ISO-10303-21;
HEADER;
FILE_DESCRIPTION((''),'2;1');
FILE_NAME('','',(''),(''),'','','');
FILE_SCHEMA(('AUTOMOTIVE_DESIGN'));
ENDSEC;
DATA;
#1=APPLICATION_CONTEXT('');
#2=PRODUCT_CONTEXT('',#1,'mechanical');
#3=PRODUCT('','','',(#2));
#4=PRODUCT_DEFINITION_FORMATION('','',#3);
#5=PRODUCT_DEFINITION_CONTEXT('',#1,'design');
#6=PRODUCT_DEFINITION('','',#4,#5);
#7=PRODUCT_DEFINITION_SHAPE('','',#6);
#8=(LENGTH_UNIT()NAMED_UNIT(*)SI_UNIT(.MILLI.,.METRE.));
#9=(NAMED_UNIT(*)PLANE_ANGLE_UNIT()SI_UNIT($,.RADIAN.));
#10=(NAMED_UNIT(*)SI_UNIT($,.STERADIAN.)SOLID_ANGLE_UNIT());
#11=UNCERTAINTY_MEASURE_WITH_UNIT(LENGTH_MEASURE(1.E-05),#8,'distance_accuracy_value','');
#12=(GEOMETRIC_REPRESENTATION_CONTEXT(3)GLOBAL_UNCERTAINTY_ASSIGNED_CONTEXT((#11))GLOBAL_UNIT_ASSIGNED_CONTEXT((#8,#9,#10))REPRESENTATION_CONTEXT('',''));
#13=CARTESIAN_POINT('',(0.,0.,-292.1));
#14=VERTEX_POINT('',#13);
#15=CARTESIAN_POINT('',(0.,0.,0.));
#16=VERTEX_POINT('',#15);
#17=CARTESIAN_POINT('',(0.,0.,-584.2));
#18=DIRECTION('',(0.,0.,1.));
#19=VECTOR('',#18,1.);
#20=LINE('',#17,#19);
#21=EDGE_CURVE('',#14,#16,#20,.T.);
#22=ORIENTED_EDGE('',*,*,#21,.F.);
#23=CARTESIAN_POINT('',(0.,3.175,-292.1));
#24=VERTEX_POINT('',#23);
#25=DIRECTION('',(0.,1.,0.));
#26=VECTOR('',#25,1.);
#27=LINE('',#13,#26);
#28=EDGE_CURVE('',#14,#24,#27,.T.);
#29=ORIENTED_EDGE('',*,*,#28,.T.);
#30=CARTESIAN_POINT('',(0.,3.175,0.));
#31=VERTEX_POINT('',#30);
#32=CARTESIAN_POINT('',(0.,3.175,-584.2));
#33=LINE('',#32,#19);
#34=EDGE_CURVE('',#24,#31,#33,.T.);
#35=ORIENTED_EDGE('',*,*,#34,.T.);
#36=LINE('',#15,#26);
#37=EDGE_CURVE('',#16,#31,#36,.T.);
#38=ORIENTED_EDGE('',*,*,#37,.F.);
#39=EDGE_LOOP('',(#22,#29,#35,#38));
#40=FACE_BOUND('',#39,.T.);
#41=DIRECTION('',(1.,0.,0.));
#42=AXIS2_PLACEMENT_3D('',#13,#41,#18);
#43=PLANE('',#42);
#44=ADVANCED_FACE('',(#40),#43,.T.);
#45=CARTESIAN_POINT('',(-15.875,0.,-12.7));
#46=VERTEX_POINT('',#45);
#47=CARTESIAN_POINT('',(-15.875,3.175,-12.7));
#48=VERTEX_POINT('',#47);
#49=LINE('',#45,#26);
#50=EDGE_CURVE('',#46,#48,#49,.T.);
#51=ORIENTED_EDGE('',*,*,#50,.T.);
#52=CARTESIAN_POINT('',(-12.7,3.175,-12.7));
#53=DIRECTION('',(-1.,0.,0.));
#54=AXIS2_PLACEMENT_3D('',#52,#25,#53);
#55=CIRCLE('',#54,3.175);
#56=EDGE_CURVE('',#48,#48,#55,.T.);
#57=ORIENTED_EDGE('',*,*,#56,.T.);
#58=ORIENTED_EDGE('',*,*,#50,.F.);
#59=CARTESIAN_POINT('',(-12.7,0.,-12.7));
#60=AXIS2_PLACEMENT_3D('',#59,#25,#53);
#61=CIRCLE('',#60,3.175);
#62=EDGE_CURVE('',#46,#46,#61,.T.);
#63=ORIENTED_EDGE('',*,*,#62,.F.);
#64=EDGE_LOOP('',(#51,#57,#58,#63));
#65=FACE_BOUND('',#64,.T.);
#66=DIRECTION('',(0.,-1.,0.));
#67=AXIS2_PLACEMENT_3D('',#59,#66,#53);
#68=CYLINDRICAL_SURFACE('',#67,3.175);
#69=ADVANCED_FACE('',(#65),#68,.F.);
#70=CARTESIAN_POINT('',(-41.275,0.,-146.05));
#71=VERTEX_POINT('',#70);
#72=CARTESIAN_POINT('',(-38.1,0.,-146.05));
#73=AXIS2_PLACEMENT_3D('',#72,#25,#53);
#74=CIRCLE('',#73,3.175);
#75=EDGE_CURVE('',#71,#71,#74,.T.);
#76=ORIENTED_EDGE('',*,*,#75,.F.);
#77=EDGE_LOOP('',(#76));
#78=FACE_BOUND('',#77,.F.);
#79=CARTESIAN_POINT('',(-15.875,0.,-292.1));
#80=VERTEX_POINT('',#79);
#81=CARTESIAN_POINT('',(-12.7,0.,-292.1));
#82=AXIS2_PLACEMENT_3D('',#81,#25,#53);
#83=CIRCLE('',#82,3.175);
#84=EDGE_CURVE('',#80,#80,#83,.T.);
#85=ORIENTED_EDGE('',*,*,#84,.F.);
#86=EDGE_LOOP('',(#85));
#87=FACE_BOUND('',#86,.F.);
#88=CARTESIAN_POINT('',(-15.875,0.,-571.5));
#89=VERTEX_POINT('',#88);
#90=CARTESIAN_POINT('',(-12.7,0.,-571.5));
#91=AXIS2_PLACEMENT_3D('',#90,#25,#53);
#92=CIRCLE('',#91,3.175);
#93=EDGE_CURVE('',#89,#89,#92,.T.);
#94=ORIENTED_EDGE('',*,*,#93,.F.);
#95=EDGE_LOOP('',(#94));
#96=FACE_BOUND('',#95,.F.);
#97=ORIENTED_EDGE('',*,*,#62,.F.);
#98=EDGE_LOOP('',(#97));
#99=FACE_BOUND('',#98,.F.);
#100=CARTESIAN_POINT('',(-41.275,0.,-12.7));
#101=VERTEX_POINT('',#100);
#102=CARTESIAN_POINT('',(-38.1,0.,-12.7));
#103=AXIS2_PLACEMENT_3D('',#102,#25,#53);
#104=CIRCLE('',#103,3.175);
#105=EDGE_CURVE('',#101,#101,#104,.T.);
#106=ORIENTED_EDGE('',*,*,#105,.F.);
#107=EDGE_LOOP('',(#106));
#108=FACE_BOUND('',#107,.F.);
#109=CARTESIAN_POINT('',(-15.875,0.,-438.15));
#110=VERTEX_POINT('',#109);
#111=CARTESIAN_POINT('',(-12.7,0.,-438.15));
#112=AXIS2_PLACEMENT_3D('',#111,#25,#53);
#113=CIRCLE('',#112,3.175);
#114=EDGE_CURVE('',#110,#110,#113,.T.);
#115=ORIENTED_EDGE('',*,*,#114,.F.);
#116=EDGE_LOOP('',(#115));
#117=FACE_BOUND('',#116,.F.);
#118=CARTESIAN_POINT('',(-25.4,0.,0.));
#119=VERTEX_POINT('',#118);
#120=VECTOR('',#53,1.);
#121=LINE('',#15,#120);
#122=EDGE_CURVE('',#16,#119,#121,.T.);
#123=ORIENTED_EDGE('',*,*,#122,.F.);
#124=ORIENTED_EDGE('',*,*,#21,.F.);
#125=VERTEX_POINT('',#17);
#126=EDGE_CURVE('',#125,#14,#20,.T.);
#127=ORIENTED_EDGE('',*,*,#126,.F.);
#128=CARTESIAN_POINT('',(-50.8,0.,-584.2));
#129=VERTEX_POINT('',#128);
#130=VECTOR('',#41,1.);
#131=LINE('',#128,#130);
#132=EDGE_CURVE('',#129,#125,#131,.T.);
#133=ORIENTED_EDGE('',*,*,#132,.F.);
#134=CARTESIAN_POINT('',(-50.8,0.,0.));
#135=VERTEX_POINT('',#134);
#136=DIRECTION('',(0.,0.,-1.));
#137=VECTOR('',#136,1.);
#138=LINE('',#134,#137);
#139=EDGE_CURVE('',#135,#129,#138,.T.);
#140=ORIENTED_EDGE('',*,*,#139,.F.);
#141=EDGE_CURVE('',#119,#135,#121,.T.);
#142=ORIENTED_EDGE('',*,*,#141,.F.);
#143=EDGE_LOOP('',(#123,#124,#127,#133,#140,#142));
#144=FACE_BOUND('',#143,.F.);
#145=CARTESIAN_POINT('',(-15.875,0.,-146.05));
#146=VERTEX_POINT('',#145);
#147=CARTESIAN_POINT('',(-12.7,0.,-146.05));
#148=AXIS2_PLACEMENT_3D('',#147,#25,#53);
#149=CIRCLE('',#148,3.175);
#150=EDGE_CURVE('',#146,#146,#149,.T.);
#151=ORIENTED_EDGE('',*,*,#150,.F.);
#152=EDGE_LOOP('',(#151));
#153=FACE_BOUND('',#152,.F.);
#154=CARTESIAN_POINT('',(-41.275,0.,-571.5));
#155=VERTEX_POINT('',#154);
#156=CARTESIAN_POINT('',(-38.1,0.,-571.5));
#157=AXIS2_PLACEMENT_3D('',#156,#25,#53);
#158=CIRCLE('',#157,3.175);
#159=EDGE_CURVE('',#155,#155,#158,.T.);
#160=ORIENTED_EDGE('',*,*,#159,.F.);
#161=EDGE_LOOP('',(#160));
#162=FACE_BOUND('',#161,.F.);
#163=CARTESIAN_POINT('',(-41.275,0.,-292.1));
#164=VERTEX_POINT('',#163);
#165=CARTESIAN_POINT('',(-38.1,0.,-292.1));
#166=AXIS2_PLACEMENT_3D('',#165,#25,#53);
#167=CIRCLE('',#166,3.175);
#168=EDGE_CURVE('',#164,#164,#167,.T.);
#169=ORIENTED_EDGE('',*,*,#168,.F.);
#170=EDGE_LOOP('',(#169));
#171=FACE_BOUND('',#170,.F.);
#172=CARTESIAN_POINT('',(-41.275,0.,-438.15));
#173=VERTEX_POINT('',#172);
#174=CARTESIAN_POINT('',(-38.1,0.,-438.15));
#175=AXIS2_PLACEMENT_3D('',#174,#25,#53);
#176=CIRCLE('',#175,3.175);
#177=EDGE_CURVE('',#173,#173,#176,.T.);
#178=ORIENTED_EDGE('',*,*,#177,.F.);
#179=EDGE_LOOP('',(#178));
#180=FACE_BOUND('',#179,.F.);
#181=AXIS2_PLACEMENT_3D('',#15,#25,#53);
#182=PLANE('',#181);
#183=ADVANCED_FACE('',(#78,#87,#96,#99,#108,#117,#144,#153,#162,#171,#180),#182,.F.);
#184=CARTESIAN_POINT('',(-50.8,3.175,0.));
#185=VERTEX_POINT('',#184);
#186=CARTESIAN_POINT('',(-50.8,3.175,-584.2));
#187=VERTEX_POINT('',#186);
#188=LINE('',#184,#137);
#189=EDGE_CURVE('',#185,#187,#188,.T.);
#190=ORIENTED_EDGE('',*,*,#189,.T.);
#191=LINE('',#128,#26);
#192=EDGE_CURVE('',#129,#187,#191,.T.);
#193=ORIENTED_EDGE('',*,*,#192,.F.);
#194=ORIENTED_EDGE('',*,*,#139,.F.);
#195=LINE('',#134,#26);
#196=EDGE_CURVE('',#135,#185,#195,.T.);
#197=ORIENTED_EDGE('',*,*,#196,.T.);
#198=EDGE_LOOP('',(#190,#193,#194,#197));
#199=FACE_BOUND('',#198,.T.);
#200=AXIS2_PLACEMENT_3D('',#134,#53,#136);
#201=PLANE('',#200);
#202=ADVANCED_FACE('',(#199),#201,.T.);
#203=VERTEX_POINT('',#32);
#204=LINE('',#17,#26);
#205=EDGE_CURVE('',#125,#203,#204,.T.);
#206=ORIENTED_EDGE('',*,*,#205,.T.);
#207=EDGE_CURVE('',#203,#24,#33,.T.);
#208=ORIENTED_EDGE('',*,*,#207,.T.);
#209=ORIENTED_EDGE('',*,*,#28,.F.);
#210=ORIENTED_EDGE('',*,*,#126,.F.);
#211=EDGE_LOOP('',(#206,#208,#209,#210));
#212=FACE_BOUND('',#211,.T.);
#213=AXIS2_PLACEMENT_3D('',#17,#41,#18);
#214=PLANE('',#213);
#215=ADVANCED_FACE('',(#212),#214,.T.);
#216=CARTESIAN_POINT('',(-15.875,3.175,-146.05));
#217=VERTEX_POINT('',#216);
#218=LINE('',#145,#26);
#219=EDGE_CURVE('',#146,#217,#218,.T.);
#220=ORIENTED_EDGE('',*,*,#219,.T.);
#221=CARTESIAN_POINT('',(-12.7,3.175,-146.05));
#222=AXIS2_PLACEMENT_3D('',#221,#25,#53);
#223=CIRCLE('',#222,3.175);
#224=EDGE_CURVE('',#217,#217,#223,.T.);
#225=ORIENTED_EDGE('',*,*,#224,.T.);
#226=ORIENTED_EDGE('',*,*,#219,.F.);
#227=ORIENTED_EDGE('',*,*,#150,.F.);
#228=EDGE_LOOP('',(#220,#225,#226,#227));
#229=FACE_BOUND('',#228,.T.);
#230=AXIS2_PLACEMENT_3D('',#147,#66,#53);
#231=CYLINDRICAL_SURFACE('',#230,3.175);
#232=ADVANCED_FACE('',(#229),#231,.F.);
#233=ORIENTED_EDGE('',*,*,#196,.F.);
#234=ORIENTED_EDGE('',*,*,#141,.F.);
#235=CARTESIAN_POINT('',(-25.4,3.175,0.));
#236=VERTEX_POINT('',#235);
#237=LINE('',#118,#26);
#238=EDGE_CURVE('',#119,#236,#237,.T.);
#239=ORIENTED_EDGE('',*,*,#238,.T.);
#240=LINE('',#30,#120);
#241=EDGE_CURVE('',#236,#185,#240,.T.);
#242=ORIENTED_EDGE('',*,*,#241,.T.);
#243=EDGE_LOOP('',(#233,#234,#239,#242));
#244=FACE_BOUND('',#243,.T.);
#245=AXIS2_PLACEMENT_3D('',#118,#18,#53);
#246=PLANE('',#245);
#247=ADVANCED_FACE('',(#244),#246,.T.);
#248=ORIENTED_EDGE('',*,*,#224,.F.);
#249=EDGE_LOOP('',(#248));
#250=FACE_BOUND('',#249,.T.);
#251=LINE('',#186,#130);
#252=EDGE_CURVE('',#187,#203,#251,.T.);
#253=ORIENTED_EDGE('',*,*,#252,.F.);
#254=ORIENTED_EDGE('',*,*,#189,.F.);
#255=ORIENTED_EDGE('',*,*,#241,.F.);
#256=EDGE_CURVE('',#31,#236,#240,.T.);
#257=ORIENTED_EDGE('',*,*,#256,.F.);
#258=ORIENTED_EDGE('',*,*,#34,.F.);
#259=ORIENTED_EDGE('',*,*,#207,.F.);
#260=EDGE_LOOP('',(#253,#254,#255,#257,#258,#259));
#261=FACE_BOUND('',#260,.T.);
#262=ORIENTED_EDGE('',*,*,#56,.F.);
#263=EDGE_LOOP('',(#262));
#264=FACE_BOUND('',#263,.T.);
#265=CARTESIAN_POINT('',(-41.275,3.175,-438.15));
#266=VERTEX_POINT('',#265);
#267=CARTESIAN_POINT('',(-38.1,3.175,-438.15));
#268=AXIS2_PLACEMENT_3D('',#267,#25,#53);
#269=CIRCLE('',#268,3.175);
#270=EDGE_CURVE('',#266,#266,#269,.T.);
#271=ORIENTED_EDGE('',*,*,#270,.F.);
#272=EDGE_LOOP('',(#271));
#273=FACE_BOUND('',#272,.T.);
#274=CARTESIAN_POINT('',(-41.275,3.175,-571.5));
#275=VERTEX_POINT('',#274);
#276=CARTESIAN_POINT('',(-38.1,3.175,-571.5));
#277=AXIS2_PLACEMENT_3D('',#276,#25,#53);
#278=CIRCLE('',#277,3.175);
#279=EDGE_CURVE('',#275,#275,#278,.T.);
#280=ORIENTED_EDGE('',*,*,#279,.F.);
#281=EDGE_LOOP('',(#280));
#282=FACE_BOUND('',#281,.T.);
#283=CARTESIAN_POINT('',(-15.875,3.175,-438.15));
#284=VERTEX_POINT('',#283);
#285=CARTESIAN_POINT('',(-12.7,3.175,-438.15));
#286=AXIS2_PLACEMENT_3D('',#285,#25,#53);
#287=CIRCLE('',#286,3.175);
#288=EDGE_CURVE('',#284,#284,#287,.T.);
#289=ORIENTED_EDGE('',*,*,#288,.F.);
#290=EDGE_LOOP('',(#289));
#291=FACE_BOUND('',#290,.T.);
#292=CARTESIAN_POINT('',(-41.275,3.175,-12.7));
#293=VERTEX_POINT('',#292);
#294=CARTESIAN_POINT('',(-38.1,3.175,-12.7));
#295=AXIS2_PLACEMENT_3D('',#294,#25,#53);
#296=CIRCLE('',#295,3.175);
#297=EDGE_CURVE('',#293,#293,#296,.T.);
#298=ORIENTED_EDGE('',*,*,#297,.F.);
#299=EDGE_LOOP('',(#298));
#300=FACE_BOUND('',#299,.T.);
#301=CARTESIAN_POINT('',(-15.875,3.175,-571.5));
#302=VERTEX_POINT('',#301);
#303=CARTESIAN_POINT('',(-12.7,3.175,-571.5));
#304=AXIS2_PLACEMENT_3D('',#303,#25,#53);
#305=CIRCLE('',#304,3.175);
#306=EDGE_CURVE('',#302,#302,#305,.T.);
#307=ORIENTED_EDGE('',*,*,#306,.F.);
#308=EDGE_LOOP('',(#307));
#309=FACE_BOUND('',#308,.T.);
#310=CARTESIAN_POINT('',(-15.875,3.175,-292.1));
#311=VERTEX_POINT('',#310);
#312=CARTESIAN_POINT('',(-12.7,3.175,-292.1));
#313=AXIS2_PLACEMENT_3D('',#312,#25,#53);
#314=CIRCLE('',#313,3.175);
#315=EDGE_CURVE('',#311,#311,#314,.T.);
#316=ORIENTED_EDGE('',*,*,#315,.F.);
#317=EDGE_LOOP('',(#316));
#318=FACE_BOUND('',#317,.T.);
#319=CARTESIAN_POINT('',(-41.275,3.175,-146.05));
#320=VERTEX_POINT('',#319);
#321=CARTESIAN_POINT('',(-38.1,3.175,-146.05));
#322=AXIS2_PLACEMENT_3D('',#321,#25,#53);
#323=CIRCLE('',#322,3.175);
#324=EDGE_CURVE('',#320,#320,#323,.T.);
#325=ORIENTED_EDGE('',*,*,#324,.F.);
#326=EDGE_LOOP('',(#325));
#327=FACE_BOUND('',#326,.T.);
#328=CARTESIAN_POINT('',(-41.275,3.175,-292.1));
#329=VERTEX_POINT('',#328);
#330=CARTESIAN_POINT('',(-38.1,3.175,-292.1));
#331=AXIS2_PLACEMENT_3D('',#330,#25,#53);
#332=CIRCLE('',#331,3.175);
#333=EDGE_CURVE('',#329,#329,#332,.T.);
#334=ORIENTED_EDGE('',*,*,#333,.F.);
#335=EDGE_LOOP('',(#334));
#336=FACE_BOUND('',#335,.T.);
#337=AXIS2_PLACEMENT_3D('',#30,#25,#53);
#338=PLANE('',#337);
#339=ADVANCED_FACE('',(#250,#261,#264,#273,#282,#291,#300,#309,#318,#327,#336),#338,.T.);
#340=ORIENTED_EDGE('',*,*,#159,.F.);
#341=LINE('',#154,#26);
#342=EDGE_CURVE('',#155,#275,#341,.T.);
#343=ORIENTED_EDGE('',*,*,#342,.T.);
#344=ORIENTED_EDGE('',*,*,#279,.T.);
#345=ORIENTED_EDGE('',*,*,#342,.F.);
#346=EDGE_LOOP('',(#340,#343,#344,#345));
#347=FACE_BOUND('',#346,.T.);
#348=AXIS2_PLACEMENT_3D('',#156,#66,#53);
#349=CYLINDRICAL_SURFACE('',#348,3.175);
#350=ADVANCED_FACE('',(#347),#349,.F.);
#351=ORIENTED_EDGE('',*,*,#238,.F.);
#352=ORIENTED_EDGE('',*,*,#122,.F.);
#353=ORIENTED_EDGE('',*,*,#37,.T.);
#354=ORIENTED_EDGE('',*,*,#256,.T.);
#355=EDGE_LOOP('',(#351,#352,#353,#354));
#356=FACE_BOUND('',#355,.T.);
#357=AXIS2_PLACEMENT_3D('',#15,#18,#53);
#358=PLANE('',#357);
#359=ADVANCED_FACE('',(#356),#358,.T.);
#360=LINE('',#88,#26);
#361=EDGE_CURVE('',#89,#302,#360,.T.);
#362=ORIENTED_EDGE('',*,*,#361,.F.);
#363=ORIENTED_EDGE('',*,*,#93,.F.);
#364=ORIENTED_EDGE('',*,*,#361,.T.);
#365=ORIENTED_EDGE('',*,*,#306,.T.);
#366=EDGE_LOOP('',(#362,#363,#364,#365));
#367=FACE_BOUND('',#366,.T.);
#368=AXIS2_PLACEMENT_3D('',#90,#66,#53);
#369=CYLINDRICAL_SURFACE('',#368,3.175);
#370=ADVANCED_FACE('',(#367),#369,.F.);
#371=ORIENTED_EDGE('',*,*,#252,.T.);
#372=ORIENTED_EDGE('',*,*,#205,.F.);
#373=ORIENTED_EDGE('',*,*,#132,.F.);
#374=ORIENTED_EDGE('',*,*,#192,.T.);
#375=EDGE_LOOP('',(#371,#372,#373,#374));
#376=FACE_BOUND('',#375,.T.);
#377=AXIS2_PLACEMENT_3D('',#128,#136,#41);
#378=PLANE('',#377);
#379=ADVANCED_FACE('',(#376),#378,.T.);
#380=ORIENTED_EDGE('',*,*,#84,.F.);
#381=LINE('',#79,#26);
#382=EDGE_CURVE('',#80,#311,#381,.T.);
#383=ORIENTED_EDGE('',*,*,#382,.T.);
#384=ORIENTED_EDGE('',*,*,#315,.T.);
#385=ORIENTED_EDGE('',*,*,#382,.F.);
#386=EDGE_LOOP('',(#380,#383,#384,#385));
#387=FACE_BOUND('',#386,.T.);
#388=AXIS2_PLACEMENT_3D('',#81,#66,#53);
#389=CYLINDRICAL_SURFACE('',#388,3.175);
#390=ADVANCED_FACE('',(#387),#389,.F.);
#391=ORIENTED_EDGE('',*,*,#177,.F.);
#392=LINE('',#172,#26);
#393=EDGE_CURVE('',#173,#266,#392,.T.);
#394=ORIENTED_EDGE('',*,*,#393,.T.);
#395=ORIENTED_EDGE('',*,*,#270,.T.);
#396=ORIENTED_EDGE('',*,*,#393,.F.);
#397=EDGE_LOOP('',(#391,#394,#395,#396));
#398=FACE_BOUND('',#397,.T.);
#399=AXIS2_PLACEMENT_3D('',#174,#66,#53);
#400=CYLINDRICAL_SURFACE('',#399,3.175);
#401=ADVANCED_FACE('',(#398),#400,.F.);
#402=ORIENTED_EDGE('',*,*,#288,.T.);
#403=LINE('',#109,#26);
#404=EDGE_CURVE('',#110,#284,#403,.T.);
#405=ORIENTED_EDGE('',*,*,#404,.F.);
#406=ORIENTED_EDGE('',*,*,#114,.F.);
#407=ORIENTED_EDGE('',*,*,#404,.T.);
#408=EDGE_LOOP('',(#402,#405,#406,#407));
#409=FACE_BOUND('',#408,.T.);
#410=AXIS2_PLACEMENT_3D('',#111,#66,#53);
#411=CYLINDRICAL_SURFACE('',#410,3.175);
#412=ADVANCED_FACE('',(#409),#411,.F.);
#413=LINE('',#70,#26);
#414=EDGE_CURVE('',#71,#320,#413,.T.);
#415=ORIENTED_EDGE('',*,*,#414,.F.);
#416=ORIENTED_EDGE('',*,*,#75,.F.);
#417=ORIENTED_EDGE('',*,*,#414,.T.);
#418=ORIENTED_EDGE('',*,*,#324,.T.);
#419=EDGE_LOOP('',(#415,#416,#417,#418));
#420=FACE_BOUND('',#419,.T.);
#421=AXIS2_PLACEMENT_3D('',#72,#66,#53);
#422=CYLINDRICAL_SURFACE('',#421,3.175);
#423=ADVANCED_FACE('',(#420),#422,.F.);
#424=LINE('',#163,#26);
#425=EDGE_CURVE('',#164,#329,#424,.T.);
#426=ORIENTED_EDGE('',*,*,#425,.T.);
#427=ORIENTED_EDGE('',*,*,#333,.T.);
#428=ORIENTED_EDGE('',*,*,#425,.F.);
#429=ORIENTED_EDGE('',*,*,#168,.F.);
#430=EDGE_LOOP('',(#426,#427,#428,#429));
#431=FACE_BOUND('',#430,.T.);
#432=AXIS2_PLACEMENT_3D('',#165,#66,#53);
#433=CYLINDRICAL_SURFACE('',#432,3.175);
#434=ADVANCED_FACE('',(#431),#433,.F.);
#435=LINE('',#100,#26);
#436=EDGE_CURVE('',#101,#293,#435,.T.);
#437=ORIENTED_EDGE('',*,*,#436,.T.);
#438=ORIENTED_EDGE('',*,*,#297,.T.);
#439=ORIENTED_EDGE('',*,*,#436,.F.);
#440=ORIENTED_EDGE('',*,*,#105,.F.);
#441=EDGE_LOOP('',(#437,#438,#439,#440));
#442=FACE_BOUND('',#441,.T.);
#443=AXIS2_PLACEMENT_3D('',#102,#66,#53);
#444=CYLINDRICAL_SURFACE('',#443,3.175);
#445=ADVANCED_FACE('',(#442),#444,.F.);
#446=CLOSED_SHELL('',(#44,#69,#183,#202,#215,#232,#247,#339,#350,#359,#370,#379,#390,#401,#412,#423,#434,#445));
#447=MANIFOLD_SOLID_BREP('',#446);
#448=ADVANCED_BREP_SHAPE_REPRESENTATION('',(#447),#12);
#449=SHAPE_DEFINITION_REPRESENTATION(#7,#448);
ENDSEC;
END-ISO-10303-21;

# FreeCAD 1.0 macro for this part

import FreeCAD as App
import Part
import Sketcher
from FreeCAD import Vector
Q = App.Units.Quantity

doc = App.newDocument("Part")
params = doc.addObject("Spreadsheet::Sheet", "Params")
for row, (alias, value) in enumerate([
    ("sketch1_diameter", "0.25 in"),
    ("sketch1_width", "2 in"),
    ("sketch1_height", "23 in"),
    ("pad1_length", "0.125 in"),
], start=1):
    params.set(f"A{row}", alias)
    params.set(f"B{row}", "=" + value)
    params.setAlias(f"B{row}", alias)

body = doc.addObject("PartDesign::Body", "Body")

# Sketch on XZ plane
sketch1 = doc.addObject("Sketcher::SketchObject", "Sketch")
body.addObject(sketch1)
sketch1.AttachmentSupport = (doc.XZ_Plane, [""])
sketch1.MapMode = "FlatFace"
sketch1.addGeometry(Part.LineSegment(Vector(-50.8, 0, 0), Vector(0, 0, 0)), False)
sketch1.addGeometry(Part.LineSegment(Vector(0, 0, 0), Vector(0, -584.2, 0)), False)
sketch1.addGeometry(Part.LineSegment(Vector(0, -584.2, 0), Vector(-50.8, -584.2, 0)), False)
sketch1.addGeometry(Part.LineSegment(Vector(-50.8, -584.2, 0), Vector(-50.8, 0, 0)), False)
sketch1.addGeometry(Part.Circle(Vector(-12.7, -571.5, 0), Vector(0, 0, 1), 3.2), False)
sketch1.addGeometry(Part.Circle(Vector(-12.7, -438.1, 0), Vector(0, 0, 1), 3.2), False)
sketch1.addGeometry(Part.Circle(Vector(-38.1, -571.5, 0), Vector(0, 0, 1), 3.2), False)
sketch1.addGeometry(Part.Circle(Vector(-38.1, -438.1, 0), Vector(0, 0, 1), 3.2), False)
sketch1.addGeometry(Part.Circle(Vector(-12.7, -292.1, 0), Vector(0, 0, 1), 3.2), False)
sketch1.addGeometry(Part.Circle(Vector(-12.7, -146.1, 0), Vector(0, 0, 1), 3.2), False)
sketch1.addGeometry(Part.Circle(Vector(-12.7, -12.7, 0), Vector(0, 0, 1), 3.2), False)
sketch1.addGeometry(Part.Circle(Vector(-38.1, -292.1, 0), Vector(0, 0, 1), 3.2), False)
sketch1.addGeometry(Part.Circle(Vector(-38.1, -146.1, 0), Vector(0, 0, 1), 3.2), False)
sketch1.addGeometry(Part.Circle(Vector(-38.1, -12.7, 0), Vector(0, 0, 1), 3.2), False)
sketch1.addConstraint(Sketcher.Constraint("Coincident", 0, 2, 1, 1))
sketch1.addConstraint(Sketcher.Constraint("Coincident", 1, 2, 2, 1))
sketch1.addConstraint(Sketcher.Constraint("Coincident", 2, 2, 3, 1))
sketch1.addConstraint(Sketcher.Constraint("Coincident", 3, 2, 0, 1))
sketch1.addConstraint(Sketcher.Constraint("Horizontal", 0))
sketch1.addConstraint(Sketcher.Constraint("Vertical", 1))
sketch1.addConstraint(Sketcher.Constraint("Horizontal", 2))
sketch1.addConstraint(Sketcher.Constraint("Vertical", 3))
sketch1.addConstraint(Sketcher.Constraint("Coincident", 0, 2, -1, 1))
sketch1.addConstraint(Sketcher.Constraint("Equal", 4, 5))
sketch1.addConstraint(Sketcher.Constraint("Equal", 5, 6))
sketch1.addConstraint(Sketcher.Constraint("Equal", 6, 7))
sketch1.addConstraint(Sketcher.Constraint("Equal", 7, 8))
sketch1.addConstraint(Sketcher.Constraint("Equal", 8, 9))
sketch1.addConstraint(Sketcher.Constraint("Equal", 9, 10))
sketch1.addConstraint(Sketcher.Constraint("Equal", 10, 11))
sketch1.addConstraint(Sketcher.Constraint("Equal", 11, 12))
sketch1.addConstraint(Sketcher.Constraint("Equal", 12, 13))
sketch1.addConstraint(Sketcher.Constraint("Horizontal", 4, 3, 6, 3))
sketch1.addConstraint(Sketcher.Constraint("Horizontal", 5, 3, 7, 3))
sketch1.addConstraint(Sketcher.Constraint("Horizontal", 8, 3, 11, 3))
sketch1.addConstraint(Sketcher.Constraint("Horizontal", 9, 3, 12, 3))
sketch1.addConstraint(Sketcher.Constraint("Horizontal", 10, 3, 13, 3))
sketch1.addConstraint(Sketcher.Constraint("Vertical", 4, 3, 5, 3))
sketch1.addConstraint(Sketcher.Constraint("Vertical", 6, 3, 7, 3))
sketch1.addConstraint(Sketcher.Constraint("Vertical", 5, 3, 8, 3))
sketch1.addConstraint(Sketcher.Constraint("Vertical", 8, 3, 9, 3))
sketch1.addConstraint(Sketcher.Constraint("Vertical", 9, 3, 10, 3))
sketch1.addConstraint(Sketcher.Constraint("Vertical", 7, 3, 11, 3))
sketch1.addConstraint(Sketcher.Constraint("Vertical", 11, 3, 12, 3))
sketch1.addConstraint(Sketcher.Constraint("Vertical", 12, 3, 13, 3))
sketch1.addConstraint(Sketcher.Constraint("Diameter", 4, Q("0.25 in")))
sketch1.addConstraint(Sketcher.Constraint("DistanceX", 0, 1, 0, 2, Q("2 in")))
sketch1.addConstraint(Sketcher.Constraint("DistanceY", 1, 2, 1, 1, Q("23 in")))
sketch1.addConstraint(Sketcher.Constraint("DistanceX", 4, 3, -1, 1, Q("0.5 in")))
sketch1.addConstraint(Sketcher.Constraint("DistanceY", 8, 3, -1, 1, Q("11.5 in")))
sketch1.addConstraint(Sketcher.Constraint("DistanceY", 10, 3, -1, 1, Q("0.5 in")))
sketch1.addConstraint(Sketcher.Constraint("DistanceY", 5, 3, 9, 3, Q("11.5 in")))
sketch1.addConstraint(Sketcher.Constraint("DistanceY", 1, 2, 4, 3, Q("0.5 in")))
sketch1.addConstraint(Sketcher.Constraint("DistanceX", 2, 2, 6, 3, Q("0.5 in")))
sketch1.addConstraint(Sketcher.Constraint("DistanceY", 9, 3, -1, 1, Q("5.75 in")))
sketch1.setExpression("Constraints[31]", "Params.sketch1_diameter")
sketch1.setExpression("Constraints[32]", "Params.sketch1_width")
sketch1.setExpression("Constraints[33]", "Params.sketch1_height")
pad1 = doc.addObject("PartDesign::Pad", "Pad")
body.addObject(pad1)
pad1.Profile = sketch1
pad1.setExpression("Length", "Params.pad1_length")
pad1.Reversed = True

doc.recompute()
